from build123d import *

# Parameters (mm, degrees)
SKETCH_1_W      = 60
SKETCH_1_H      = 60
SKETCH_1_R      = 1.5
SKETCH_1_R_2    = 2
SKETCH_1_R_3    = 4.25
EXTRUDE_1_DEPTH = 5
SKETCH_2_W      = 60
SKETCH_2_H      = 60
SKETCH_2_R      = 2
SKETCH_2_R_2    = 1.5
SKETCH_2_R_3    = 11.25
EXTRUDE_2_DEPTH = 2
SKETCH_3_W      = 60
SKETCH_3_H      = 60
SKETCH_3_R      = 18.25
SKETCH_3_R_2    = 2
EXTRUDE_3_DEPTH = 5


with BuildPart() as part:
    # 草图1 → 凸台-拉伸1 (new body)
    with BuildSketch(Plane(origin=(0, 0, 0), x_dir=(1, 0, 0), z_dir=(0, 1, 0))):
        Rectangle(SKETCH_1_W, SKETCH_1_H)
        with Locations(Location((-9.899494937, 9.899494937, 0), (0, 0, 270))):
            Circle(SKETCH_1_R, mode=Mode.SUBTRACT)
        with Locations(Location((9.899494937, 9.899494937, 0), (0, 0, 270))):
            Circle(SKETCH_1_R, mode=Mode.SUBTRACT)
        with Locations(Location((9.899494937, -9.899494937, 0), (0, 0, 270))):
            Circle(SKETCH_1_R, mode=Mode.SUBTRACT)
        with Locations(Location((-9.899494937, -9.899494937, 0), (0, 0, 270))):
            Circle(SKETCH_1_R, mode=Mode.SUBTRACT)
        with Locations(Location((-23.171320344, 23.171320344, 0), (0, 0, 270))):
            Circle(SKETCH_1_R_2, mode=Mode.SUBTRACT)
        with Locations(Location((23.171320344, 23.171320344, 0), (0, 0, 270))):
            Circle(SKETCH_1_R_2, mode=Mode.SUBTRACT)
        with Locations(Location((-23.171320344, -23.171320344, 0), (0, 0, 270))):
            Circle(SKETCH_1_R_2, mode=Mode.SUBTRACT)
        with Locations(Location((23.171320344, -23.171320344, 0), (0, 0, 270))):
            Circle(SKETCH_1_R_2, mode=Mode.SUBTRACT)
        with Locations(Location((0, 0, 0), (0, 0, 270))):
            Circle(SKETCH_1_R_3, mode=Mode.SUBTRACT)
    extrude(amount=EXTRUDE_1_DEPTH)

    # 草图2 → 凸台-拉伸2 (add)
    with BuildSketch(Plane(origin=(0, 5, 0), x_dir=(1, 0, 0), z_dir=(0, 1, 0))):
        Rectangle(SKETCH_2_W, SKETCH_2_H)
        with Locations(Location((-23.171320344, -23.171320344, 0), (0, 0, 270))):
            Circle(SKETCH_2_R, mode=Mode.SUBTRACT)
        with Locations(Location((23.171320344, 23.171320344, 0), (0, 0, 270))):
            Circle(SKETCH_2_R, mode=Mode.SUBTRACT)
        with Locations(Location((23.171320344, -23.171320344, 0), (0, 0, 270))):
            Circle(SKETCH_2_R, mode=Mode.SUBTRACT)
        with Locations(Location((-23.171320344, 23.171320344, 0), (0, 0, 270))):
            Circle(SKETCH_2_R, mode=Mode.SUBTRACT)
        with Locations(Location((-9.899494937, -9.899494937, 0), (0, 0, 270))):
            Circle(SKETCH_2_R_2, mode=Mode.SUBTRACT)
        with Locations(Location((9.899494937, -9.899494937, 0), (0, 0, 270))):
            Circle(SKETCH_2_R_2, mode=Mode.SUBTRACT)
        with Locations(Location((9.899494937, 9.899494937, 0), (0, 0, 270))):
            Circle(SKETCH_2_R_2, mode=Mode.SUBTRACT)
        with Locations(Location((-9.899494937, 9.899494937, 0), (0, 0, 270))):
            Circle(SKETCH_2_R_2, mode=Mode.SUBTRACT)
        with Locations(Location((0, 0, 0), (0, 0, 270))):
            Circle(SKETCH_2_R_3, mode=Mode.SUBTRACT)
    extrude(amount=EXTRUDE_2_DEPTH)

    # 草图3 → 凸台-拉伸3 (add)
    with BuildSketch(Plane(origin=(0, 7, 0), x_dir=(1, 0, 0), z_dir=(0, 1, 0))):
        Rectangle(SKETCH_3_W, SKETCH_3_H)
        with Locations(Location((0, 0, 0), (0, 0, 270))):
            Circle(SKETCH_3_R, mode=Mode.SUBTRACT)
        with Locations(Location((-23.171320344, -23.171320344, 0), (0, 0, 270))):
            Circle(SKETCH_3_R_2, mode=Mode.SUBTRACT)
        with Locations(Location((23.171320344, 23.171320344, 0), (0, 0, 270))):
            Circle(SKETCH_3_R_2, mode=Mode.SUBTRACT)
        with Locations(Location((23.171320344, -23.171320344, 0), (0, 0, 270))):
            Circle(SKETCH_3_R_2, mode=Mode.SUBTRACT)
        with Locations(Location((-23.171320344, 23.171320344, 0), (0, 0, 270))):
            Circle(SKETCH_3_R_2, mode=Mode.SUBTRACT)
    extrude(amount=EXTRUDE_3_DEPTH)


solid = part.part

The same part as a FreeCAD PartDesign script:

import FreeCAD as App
import Part
import Sketcher

V = App.Vector
Q = App.Units.Quantity

doc = App.newDocument("Part")
body = doc.addObject("PartDesign::Body", "Body")

sketch1 = body.newObject("Sketcher::SketchObject", "Sketch")
sketch1.AttachmentSupport = (doc.getObject("XZ_Plane"), [""])
sketch1.MapMode = "FlatFace"
sketch1.addGeometry(Part.LineSegment(V(-30, -30, 0), V(-30, 30, 0)), False)
sketch1.addGeometry(Part.LineSegment(V(-30, 30, 0), V(30, 30, 0)), False)
sketch1.addGeometry(Part.LineSegment(V(30, 30, 0), V(30, -30, 0)), False)
sketch1.addGeometry(Part.LineSegment(V(30, -30, 0), V(-30, -30, 0)), False)
sketch1.addGeometry(Part.Circle(V(-23.2, 23.2, 0), V(0, 0, 1), 2), False)
sketch1.addGeometry(Part.Circle(V(-9.9, 9.9, 0), V(0, 0, 1), 1.5), False)
sketch1.addGeometry(Part.Circle(V(0, 0, 0), V(0, 0, 1), 4.2), False)
sketch1.addGeometry(Part.Circle(V(23.2, 23.2, 0), V(0, 0, 1), 2), False)
sketch1.addGeometry(Part.Circle(V(9.9, 9.9, 0), V(0, 0, 1), 1.5), False)
sketch1.addGeometry(Part.Circle(V(-9.9, -9.9, 0), V(0, 0, 1), 1.5), False)
sketch1.addGeometry(Part.Circle(V(-23.2, -23.2, 0), V(0, 0, 1), 2), False)
sketch1.addGeometry(Part.Circle(V(9.9, -9.9, 0), V(0, 0, 1), 1.5), False)
sketch1.addGeometry(Part.Circle(V(23.2, -23.2, 0), V(0, 0, 1), 2), False)
sketch1.addConstraint(Sketcher.Constraint("Coincident", 0, 2, 1, 1))
sketch1.addConstraint(Sketcher.Constraint("Coincident", 1, 2, 2, 1))
sketch1.addConstraint(Sketcher.Constraint("Coincident", 2, 2, 3, 1))
sketch1.addConstraint(Sketcher.Constraint("Coincident", 3, 2, 0, 1))
sketch1.addConstraint(Sketcher.Constraint("Vertical", 0))
sketch1.addConstraint(Sketcher.Constraint("Horizontal", 1))
sketch1.addConstraint(Sketcher.Constraint("Vertical", 2))
sketch1.addConstraint(Sketcher.Constraint("Horizontal", 3))
sketch1.addConstraint(Sketcher.Constraint("Coincident", 6, 3, -1, 1))
sketch1.addConstraint(Sketcher.Constraint("Equal", 4, 7))
sketch1.addConstraint(Sketcher.Constraint("Equal", 5, 8))
sketch1.addConstraint(Sketcher.Constraint("Equal", 8, 9))
sketch1.addConstraint(Sketcher.Constraint("Equal", 7, 10))
sketch1.addConstraint(Sketcher.Constraint("Equal", 9, 11))
sketch1.addConstraint(Sketcher.Constraint("Equal", 10, 12))
sketch1.addConstraint(Sketcher.Constraint("Symmetric", 8, 3, 9, 3, -1, 1))
sketch1.addConstraint(Sketcher.Constraint("Symmetric", 7, 3, 10, 3, -1, 1))
sketch1.addConstraint(Sketcher.Constraint("Symmetric", 5, 3, 11, 3, -1, 1))
sketch1.addConstraint(Sketcher.Constraint("Symmetric", 4, 3, 12, 3, -1, 1))
sketch1.addConstraint(Sketcher.Constraint("Symmetric", 0, 2, 2, 2, -1, 1))
sketch1.addConstraint(Sketcher.Constraint("Symmetric", 4, 3, 7, 3, -2))
sketch1.addConstraint(Sketcher.Constraint("Symmetric", 5, 3, 8, 3, -2))
sketch1.addConstraint(Sketcher.Constraint("Equal", 3, 0))
sketch1.addConstraint(Sketcher.Constraint("Diameter", 4, Q("4 mm")))
sketch1.addConstraint(Sketcher.Constraint("Diameter", 5, Q("3 mm")))
sketch1.addConstraint(Sketcher.Constraint("Diameter", 6, Q("8.5 mm")))
sketch1.addConstraint(Sketcher.Constraint("DistanceX", 1, 1, 1, 2, Q("60 mm")))
sketch1.addConstraint(Sketcher.Constraint("DistanceX", 4, 3, -1, 1, Q("23.17132 mm")))
sketch1.addConstraint(Sketcher.Constraint("DistanceY", -1, 1, 4, 3, Q("23.17132 mm")))
sketch1.addConstraint(Sketcher.Constraint("DistanceX", 5, 3, 8, 3, Q("19.79899 mm")))
sketch1.addConstraint(Sketcher.Constraint("DistanceY", 9, 3, 5, 3, Q("19.79899 mm")))
pad1 = body.newObject("PartDesign::Pad", "Pad")
pad1.Profile = sketch1
pad1.Length = 5
pad1.Reversed = True

sketch2 = body.newObject("Sketcher::SketchObject", "Sketch001")
sketch2.AttachmentSupport = (doc.getObject("XZ_Plane"), [""])
sketch2.MapMode = "FlatFace"
sketch2.AttachmentOffset = App.Placement(V(0, 0, -5), App.Rotation())
sketch2.addGeometry(Part.LineSegment(V(-30, -30, 0), V(-30, 30, 0)), False)
sketch2.addGeometry(Part.LineSegment(V(-30, 30, 0), V(30, 30, 0)), False)
sketch2.addGeometry(Part.LineSegment(V(30, 30, 0), V(30, -30, 0)), False)
sketch2.addGeometry(Part.LineSegment(V(30, -30, 0), V(-30, -30, 0)), False)
sketch2.addGeometry(Part.Circle(V(-23.2, 23.2, 0), V(0, 0, 1), 2), False)
sketch2.addGeometry(Part.Circle(V(-9.9, 9.9, 0), V(0, 0, 1), 1.5), False)
sketch2.addGeometry(Part.Circle(V(0, 0, 0), V(0, 0, 1), 11.2), False)
sketch2.addGeometry(Part.Circle(V(23.2, 23.2, 0), V(0, 0, 1), 2), False)
sketch2.addGeometry(Part.Circle(V(9.9, 9.9, 0), V(0, 0, 1), 1.5), False)
sketch2.addGeometry(Part.Circle(V(-9.9, -9.9, 0), V(0, 0, 1), 1.5), False)
sketch2.addGeometry(Part.Circle(V(-23.2, -23.2, 0), V(0, 0, 1), 2), False)
sketch2.addGeometry(Part.Circle(V(9.9, -9.9, 0), V(0, 0, 1), 1.5), False)
sketch2.addGeometry(Part.Circle(V(23.2, -23.2, 0), V(0, 0, 1), 2), False)
sketch2.addConstraint(Sketcher.Constraint("Coincident", 0, 2, 1, 1))
sketch2.addConstraint(Sketcher.Constraint("Coincident", 1, 2, 2, 1))
sketch2.addConstraint(Sketcher.Constraint("Coincident", 2, 2, 3, 1))
sketch2.addConstraint(Sketcher.Constraint("Coincident", 3, 2, 0, 1))
sketch2.addConstraint(Sketcher.Constraint("Vertical", 0))
sketch2.addConstraint(Sketcher.Constraint("Horizontal", 1))
sketch2.addConstraint(Sketcher.Constraint("Vertical", 2))
sketch2.addConstraint(Sketcher.Constraint("Horizontal", 3))
sketch2.addConstraint(Sketcher.Constraint("Coincident", 6, 3, -1, 1))
sketch2.addConstraint(Sketcher.Constraint("Equal", 4, 7))
sketch2.addConstraint(Sketcher.Constraint("Equal", 5, 8))
sketch2.addConstraint(Sketcher.Constraint("Equal", 8, 9))
sketch2.addConstraint(Sketcher.Constraint("Equal", 7, 10))
sketch2.addConstraint(Sketcher.Constraint("Equal", 9, 11))
sketch2.addConstraint(Sketcher.Constraint("Equal", 10, 12))
sketch2.addConstraint(Sketcher.Constraint("Symmetric", 8, 3, 9, 3, -1, 1))
sketch2.addConstraint(Sketcher.Constraint("Symmetric", 7, 3, 10, 3, -1, 1))
sketch2.addConstraint(Sketcher.Constraint("Symmetric", 5, 3, 11, 3, -1, 1))
sketch2.addConstraint(Sketcher.Constraint("Symmetric", 4, 3, 12, 3, -1, 1))
sketch2.addConstraint(Sketcher.Constraint("Symmetric", 0, 2, 2, 2, -1, 1))
sketch2.addConstraint(Sketcher.Constraint("Symmetric", 4, 3, 7, 3, -2))
sketch2.addConstraint(Sketcher.Constraint("Symmetric", 5, 3, 8, 3, -2))
sketch2.addConstraint(Sketcher.Constraint("Equal", 3, 0))
sketch2.addConstraint(Sketcher.Constraint("Diameter", 4, Q("4 mm")))
sketch2.addConstraint(Sketcher.Constraint("Diameter", 5, Q("3 mm")))
sketch2.addConstraint(Sketcher.Constraint("Diameter", 6, Q("22.5 mm")))
sketch2.addConstraint(Sketcher.Constraint("DistanceX", 1, 1, 1, 2, Q("60 mm")))
sketch2.addConstraint(Sketcher.Constraint("DistanceX", 4, 3, -1, 1, Q("23.17132 mm")))
sketch2.addConstraint(Sketcher.Constraint("DistanceY", -1, 1, 4, 3, Q("23.17132 mm")))
sketch2.addConstraint(Sketcher.Constraint("DistanceX", 5, 3, 8, 3, Q("19.79899 mm")))
sketch2.addConstraint(Sketcher.Constraint("DistanceY", 9, 3, 5, 3, Q("19.79899 mm")))
pad2 = body.newObject("PartDesign::Pad", "Pad001")
pad2.Profile = sketch2
pad2.Length = 2
pad2.Reversed = True

sketch3 = body.newObject("Sketcher::SketchObject", "Sketch002")
sketch3.AttachmentSupport = (doc.getObject("XZ_Plane"), [""])
sketch3.MapMode = "FlatFace"
sketch3.AttachmentOffset = App.Placement(V(0, 0, -7), App.Rotation())
sketch3.addGeometry(Part.LineSegment(V(-30, -30, 0), V(-30, 30, 0)), False)
sketch3.addGeometry(Part.LineSegment(V(-30, 30, 0), V(30, 30, 0)), False)
sketch3.addGeometry(Part.LineSegment(V(30, 30, 0), V(30, -30, 0)), False)
sketch3.addGeometry(Part.LineSegment(V(30, -30, 0), V(-30, -30, 0)), False)
sketch3.addGeometry(Part.Circle(V(-23.2, 23.2, 0), V(0, 0, 1), 2), False)
sketch3.addGeometry(Part.Circle(V(0, 0, 0), V(0, 0, 1), 18.2), False)
sketch3.addGeometry(Part.Circle(V(23.2, 23.2, 0), V(0, 0, 1), 2), False)
sketch3.addGeometry(Part.Circle(V(-23.2, -23.2, 0), V(0, 0, 1), 2), False)
sketch3.addGeometry(Part.Circle(V(23.2, -23.2, 0), V(0, 0, 1), 2), False)
sketch3.addConstraint(Sketcher.Constraint("Coincident", 0, 2, 1, 1))
sketch3.addConstraint(Sketcher.Constraint("Coincident", 1, 2, 2, 1))
sketch3.addConstraint(Sketcher.Constraint("Coincident", 2, 2, 3, 1))
sketch3.addConstraint(Sketcher.Constraint("Coincident", 3, 2, 0, 1))
sketch3.addConstraint(Sketcher.Constraint("Vertical", 0))
sketch3.addConstraint(Sketcher.Constraint("Horizontal", 1))
sketch3.addConstraint(Sketcher.Constraint("Vertical", 2))
sketch3.addConstraint(Sketcher.Constraint("Horizontal", 3))
sketch3.addConstraint(Sketcher.Constraint("Coincident", 5, 3, -1, 1))
sketch3.addConstraint(Sketcher.Constraint("Equal", 4, 6))
sketch3.addConstraint(Sketcher.Constraint("Equal", 6, 7))
sketch3.addConstraint(Sketcher.Constraint("Equal", 7, 8))
sketch3.addConstraint(Sketcher.Constraint("Symmetric", 6, 3, 7, 3, -1, 1))
sketch3.addConstraint(Sketcher.Constraint("Symmetric", 4, 3, 8, 3, -1, 1))
sketch3.addConstraint(Sketcher.Constraint("Symmetric", 0, 2, 2, 2, -1, 1))
sketch3.addConstraint(Sketcher.Constraint("Symmetric", 4, 3, 6, 3, -2))
sketch3.addConstraint(Sketcher.Constraint("Equal", 3, 0))
sketch3.addConstraint(Sketcher.Constraint("Diameter", 4, Q("4 mm")))
sketch3.addConstraint(Sketcher.Constraint("Diameter", 5, Q("36.5 mm")))
sketch3.addConstraint(Sketcher.Constraint("DistanceX", 1, 1, 1, 2, Q("60 mm")))
sketch3.addConstraint(Sketcher.Constraint("DistanceX", 4, 3, -1, 1, Q("23.17132 mm")))
sketch3.addConstraint(Sketcher.Constraint("DistanceY", -1, 1, 4, 3, Q("23.17132 mm")))
pad3 = body.newObject("PartDesign::Pad", "Pad002")
pad3.Profile = sketch3
pad3.Length = 5
pad3.Reversed = True

doc.recompute()
